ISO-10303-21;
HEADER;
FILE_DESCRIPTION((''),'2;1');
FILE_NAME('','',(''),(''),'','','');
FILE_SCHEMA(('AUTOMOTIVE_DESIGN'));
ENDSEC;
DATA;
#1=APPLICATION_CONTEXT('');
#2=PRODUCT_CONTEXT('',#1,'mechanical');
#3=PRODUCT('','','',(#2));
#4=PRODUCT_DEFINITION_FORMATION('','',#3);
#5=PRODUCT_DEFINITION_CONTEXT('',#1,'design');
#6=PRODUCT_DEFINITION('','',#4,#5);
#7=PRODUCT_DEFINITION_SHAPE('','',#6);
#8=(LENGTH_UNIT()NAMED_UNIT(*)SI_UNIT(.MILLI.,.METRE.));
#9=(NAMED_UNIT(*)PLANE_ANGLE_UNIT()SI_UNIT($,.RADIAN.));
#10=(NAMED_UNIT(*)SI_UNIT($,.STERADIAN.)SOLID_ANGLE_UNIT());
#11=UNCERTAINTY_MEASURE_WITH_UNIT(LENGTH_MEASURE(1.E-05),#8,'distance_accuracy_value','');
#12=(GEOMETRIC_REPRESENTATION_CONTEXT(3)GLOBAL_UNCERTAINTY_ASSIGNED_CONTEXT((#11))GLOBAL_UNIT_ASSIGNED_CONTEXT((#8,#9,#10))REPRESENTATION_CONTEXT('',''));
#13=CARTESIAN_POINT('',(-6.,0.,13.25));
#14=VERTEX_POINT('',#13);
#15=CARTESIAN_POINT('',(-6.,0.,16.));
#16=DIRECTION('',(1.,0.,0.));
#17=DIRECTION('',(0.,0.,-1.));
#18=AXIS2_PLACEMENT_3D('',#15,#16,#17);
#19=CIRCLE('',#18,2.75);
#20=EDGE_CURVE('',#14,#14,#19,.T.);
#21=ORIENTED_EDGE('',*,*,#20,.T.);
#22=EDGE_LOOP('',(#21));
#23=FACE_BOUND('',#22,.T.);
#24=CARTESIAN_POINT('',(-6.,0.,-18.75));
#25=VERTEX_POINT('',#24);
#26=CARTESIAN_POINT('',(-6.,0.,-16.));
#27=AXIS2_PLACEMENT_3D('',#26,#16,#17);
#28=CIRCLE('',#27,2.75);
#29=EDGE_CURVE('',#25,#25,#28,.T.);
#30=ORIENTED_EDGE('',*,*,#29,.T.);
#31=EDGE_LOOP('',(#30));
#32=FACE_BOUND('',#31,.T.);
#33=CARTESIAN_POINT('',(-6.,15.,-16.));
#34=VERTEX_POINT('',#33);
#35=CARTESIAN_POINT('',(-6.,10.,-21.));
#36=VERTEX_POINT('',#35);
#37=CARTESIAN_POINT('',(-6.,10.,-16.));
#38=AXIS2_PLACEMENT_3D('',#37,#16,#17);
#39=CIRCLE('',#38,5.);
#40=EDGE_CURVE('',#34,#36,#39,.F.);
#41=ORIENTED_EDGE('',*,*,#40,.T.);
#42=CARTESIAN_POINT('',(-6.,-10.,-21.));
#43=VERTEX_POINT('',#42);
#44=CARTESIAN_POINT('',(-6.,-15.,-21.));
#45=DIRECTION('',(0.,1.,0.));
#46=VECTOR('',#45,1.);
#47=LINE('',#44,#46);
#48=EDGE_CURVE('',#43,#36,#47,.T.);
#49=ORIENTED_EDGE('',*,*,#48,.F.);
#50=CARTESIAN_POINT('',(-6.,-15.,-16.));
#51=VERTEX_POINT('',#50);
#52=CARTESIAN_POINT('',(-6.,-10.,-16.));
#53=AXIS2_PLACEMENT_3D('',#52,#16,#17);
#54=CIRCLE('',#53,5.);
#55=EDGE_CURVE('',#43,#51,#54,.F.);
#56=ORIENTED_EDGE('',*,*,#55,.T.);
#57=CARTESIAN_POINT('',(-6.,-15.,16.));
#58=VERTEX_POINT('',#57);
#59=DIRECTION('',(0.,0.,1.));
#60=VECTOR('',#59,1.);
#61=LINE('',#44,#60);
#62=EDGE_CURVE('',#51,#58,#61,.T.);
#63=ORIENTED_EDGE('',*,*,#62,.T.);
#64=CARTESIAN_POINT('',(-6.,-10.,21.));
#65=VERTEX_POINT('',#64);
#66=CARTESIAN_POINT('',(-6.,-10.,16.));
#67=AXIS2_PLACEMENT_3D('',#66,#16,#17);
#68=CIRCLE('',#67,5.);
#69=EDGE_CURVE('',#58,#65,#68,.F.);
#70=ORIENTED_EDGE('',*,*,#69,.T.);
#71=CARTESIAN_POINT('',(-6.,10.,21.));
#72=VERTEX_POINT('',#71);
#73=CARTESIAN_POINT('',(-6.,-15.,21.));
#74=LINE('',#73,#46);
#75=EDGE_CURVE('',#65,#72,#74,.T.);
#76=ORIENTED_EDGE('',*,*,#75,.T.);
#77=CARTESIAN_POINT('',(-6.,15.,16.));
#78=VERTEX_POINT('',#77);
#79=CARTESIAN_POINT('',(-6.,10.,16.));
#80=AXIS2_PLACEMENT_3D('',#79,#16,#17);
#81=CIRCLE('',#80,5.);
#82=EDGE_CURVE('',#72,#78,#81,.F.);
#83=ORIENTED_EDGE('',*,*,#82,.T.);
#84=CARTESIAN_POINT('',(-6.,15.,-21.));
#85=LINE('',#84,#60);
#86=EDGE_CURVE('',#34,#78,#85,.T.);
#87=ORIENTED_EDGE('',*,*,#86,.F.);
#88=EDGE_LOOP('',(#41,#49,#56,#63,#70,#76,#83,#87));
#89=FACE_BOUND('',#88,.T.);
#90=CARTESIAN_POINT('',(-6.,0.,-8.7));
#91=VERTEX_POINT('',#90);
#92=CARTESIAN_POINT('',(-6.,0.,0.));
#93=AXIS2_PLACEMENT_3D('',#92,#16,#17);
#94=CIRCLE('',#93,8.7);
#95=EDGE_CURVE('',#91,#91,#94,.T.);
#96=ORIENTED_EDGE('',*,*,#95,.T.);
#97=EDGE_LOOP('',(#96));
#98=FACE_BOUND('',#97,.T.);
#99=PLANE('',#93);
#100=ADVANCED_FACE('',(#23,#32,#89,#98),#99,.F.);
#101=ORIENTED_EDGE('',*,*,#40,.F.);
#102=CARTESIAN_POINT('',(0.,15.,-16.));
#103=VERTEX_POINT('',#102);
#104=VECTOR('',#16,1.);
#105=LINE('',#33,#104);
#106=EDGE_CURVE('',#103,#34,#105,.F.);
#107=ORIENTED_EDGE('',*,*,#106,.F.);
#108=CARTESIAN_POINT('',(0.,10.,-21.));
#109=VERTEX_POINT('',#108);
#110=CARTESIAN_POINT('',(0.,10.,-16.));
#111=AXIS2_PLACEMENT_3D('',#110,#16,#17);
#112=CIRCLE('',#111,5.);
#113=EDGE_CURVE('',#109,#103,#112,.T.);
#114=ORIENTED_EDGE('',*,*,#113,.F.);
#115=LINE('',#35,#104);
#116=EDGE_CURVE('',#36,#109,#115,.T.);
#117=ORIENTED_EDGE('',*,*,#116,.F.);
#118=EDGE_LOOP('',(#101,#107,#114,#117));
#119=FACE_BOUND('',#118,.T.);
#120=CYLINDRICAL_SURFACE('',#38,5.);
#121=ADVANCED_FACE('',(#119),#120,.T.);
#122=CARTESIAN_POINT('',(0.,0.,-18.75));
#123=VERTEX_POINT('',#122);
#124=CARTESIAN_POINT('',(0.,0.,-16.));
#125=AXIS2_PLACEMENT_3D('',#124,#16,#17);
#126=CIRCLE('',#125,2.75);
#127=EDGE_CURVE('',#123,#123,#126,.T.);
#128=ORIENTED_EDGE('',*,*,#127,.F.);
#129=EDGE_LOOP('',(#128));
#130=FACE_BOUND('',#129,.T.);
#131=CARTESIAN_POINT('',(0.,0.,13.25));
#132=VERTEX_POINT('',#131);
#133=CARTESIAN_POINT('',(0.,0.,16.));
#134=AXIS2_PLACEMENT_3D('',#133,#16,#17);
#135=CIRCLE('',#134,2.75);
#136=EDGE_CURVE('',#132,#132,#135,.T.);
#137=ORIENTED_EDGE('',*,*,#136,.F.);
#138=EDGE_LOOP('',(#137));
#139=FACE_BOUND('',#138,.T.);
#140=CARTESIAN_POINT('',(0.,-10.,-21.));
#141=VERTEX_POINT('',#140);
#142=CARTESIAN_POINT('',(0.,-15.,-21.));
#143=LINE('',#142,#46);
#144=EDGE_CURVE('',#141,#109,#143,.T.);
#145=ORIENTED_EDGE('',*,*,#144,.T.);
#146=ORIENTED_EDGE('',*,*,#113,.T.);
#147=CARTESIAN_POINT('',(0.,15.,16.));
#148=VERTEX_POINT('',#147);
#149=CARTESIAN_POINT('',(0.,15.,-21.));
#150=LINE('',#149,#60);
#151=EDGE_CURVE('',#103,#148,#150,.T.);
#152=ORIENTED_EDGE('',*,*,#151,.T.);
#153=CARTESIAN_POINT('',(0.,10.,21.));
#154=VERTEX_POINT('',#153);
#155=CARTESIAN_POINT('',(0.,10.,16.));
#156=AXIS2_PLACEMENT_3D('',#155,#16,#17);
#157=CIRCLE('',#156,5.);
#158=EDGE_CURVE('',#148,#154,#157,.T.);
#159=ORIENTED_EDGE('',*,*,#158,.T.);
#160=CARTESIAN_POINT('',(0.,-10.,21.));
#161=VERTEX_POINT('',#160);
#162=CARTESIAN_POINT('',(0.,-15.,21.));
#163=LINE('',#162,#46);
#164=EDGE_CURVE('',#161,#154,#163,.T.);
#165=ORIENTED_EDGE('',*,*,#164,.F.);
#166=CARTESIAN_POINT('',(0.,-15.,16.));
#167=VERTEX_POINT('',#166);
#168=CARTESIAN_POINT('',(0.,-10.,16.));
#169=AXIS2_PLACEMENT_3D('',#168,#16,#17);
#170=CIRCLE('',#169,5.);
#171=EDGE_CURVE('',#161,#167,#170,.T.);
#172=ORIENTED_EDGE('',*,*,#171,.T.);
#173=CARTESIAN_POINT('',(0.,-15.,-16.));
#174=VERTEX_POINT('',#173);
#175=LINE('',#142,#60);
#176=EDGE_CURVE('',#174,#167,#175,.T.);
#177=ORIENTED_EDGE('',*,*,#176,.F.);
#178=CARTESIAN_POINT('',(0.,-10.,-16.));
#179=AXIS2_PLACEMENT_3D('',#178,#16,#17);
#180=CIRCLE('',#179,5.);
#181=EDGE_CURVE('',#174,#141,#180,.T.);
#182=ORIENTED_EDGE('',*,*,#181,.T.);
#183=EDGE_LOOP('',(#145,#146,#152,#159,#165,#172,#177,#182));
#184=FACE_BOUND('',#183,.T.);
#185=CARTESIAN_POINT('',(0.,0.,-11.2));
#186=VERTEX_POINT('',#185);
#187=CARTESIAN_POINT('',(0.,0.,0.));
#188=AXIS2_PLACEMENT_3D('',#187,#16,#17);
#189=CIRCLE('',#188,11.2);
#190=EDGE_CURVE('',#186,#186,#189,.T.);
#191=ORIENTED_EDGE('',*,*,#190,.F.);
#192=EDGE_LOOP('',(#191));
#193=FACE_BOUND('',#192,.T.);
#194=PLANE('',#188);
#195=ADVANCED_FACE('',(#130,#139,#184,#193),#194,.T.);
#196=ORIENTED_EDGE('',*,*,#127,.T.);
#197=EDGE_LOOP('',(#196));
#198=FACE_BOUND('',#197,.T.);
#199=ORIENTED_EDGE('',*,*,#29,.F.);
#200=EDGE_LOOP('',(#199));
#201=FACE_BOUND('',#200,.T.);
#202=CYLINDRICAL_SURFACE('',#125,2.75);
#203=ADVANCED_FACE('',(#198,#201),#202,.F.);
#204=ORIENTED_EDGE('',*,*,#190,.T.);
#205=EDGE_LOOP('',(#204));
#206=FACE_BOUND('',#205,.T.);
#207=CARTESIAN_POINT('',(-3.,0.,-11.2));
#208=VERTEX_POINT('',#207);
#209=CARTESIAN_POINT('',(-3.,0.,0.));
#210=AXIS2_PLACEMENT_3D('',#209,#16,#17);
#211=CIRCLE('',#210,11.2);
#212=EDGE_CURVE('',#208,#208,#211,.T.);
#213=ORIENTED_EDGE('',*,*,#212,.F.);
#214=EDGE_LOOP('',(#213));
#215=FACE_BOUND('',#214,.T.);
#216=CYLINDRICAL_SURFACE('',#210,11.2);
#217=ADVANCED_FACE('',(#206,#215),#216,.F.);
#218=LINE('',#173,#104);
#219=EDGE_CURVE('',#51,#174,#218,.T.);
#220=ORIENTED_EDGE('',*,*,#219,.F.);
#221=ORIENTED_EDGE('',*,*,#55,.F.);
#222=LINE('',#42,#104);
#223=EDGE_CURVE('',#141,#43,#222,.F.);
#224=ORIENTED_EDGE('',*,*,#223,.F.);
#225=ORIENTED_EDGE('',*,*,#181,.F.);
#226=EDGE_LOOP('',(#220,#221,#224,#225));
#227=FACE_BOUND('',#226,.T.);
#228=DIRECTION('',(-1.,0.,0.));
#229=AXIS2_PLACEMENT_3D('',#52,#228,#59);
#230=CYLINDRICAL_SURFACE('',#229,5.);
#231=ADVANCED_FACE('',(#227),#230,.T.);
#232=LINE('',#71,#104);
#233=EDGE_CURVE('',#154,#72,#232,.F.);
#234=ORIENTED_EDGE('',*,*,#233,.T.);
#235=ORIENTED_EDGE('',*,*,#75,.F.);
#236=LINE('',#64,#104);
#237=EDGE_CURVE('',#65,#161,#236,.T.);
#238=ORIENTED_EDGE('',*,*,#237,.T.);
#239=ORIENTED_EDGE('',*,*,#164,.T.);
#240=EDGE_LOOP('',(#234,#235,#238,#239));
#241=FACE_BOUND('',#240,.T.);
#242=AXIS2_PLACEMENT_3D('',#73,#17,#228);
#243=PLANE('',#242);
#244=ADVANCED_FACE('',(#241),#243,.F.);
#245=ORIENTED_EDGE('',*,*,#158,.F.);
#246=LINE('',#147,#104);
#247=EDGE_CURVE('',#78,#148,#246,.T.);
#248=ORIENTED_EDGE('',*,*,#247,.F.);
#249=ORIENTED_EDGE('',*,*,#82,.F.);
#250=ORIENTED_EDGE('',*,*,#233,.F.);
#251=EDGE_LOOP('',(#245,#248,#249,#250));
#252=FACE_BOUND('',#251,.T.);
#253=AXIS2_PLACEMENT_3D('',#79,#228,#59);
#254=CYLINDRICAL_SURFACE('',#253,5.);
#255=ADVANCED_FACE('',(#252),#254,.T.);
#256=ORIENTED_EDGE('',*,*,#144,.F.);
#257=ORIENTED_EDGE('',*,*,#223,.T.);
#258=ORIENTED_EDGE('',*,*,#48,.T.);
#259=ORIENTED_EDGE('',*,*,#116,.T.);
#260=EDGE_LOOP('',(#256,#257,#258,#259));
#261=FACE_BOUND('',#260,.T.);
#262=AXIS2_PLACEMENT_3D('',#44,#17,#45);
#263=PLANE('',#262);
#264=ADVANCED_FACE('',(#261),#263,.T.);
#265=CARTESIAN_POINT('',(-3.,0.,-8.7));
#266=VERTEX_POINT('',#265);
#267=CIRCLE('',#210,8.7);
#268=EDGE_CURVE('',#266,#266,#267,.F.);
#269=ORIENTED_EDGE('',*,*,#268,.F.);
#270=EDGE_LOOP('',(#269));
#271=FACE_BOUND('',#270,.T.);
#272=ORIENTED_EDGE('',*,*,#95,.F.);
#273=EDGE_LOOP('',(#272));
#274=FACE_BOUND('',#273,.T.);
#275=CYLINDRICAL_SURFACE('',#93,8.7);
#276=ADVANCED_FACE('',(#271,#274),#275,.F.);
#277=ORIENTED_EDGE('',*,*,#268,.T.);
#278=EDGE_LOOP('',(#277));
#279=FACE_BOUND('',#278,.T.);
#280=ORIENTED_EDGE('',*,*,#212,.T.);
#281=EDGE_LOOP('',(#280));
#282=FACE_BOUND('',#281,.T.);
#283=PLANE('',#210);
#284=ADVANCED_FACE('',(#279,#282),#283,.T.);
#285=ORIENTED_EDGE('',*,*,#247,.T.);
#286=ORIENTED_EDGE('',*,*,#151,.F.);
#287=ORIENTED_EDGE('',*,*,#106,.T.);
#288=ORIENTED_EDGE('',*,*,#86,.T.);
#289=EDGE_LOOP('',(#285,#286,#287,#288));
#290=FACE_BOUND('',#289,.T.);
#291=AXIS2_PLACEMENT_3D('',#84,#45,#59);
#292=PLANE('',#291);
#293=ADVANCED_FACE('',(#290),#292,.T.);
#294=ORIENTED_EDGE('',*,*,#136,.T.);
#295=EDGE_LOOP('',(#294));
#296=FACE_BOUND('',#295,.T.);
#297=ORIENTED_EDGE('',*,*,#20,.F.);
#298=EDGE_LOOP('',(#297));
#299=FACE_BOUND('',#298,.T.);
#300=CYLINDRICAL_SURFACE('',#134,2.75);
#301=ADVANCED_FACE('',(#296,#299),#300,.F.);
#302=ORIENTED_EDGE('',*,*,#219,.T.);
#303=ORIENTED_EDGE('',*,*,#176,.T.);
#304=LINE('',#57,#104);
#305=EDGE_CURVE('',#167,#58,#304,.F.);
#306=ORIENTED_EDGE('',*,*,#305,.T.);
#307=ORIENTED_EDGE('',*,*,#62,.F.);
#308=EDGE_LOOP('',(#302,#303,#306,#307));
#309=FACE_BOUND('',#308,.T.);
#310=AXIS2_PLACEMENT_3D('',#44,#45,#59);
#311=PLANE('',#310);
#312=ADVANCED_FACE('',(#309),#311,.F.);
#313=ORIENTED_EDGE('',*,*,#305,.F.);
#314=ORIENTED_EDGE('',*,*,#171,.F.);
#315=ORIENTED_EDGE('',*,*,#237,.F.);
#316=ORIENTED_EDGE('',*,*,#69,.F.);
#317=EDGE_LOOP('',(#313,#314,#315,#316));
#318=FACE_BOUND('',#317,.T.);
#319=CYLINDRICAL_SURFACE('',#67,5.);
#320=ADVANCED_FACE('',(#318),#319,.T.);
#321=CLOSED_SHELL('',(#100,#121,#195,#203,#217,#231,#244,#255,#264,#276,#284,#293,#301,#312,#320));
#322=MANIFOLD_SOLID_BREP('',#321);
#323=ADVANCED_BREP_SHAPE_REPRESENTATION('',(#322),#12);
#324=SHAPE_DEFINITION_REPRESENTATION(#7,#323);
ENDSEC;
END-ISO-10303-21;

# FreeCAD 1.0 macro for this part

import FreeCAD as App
import Part
import Sketcher
Q = App.Units.Quantity


def edges_at(feature, points):
    """Names of the edges that pass closest to the given points."""
    edges = feature.Shape.Edges
    near = lambda p: min(range(len(edges)), key=lambda i: edges[i].distToShape(Part.Vertex(*p))[0])
    return sorted({f"Edge{near(p) + 1}" for p in points})


def add_polygon(sketch, points):
    """Adds a closed chain of lines whose ends are joined by coincident constraints."""
    first, n = sketch.GeometryCount, len(points)
    for a, b in zip(points, points[1:] + points[:1]):
        sketch.addGeometry(Part.LineSegment(App.Vector(*a, 0), App.Vector(*b, 0)), False)
    for i in range(n):
        sketch.addConstraint(Sketcher.Constraint("Coincident", first + i, 2, first + (i + 1) % n, 1))

doc = App.newDocument("Part")
body = doc.addObject("PartDesign::Body", "Body")

# Sketch on YZ plane
sketch1 = doc.addObject("Sketcher::SketchObject", "Sketch")
body.addObject(sketch1)
sketch1.AttachmentSupport = (doc.YZ_Plane, [""])
sketch1.MapMode = "FlatFace"
add_polygon(sketch1, [(15, 21), (-15, 21), (-15, -21), (15, -21)])  # lines 0-3
sketch1.addConstraint(Sketcher.Constraint("Horizontal", 0))
sketch1.addConstraint(Sketcher.Constraint("Vertical", 1))
sketch1.addConstraint(Sketcher.Constraint("Horizontal", 2))
sketch1.addConstraint(Sketcher.Constraint("Vertical", 3))
sketch1.addConstraint(Sketcher.Constraint("Symmetric", 0, 2, 2, 2, -1, 1))
sketch1.addConstraint(Sketcher.Constraint("DistanceX", 0, 2, 0, 1, Q("30 mm")))
sketch1.addConstraint(Sketcher.Constraint("DistanceY", 1, 2, 1, 1, Q("42 mm")))
pad1 = doc.addObject("PartDesign::Pad", "Pad")
body.addObject(pad1)
pad1.Profile = sketch1
pad1.Length = 6
pad1.Reversed = True

# Sketch on YZ plane
sketch2 = doc.addObject("Sketcher::SketchObject", "Sketch001")
body.addObject(sketch2)
sketch2.AttachmentSupport = (doc.YZ_Plane, [""])
sketch2.MapMode = "FlatFace"
sketch2.addGeometry(Part.Circle(App.Vector(0, 0, 0), App.Vector(0, 0, 1), 9), False)
sketch2.addConstraint(Sketcher.Constraint("Coincident", 0, 3, -1, 1))
sketch2.addConstraint(Sketcher.Constraint("Diameter", 0, Q("17.4 mm")))
pocket1 = doc.addObject("PartDesign::Pocket", "Pocket")
body.addObject(pocket1)
pocket1.Profile = sketch2
pocket1.Length = 6

# Sketch on YZ plane
sketch3 = doc.addObject("Sketcher::SketchObject", "Sketch002")
body.addObject(sketch3)
sketch3.AttachmentSupport = (doc.YZ_Plane, [""])
sketch3.MapMode = "FlatFace"
sketch3.addGeometry(Part.Circle(App.Vector(0, 0, 0), App.Vector(0, 0, 1), 11), False)
sketch3.addConstraint(Sketcher.Constraint("Coincident", 0, 3, -1, 1))
sketch3.addConstraint(Sketcher.Constraint("Diameter", 0, Q("22.4 mm")))
pocket2 = doc.addObject("PartDesign::Pocket", "Pocket001")
body.addObject(pocket2)
pocket2.Profile = sketch3
pocket2.Length = 3

# Sketch on YZ plane
sketch4 = doc.addObject("Sketcher::SketchObject", "Sketch003")
body.addObject(sketch4)
sketch4.AttachmentSupport = (doc.YZ_Plane, [""])
sketch4.MapMode = "FlatFace"
sketch4.addGeometry(Part.Circle(App.Vector(0, 16, 0), App.Vector(0, 0, 1), 2.8), False)
sketch4.addGeometry(Part.Circle(App.Vector(0, -16, 0), App.Vector(0, 0, 1), 2.8), False)
sketch4.addConstraint(Sketcher.Constraint("Equal", 0, 1))
sketch4.addConstraint(Sketcher.Constraint("Symmetric", 0, 3, 1, 3, -1, 1))
sketch4.addConstraint(Sketcher.Constraint("PointOnObject", 0, 3, -2))
sketch4.addConstraint(Sketcher.Constraint("Diameter", 0, Q("5.5 mm")))
sketch4.addConstraint(Sketcher.Constraint("DistanceY", -1, 1, 0, 3, Q("16 mm")))
doc.recompute()
hole = doc.addObject("PartDesign::Hole", "Hole")
body.addObject(hole)
hole.Profile = sketch4
hole.ThreadType = "None"
hole.Diameter = 5.5
hole.DepthType = "ThroughAll"
doc.recompute()

fillet = doc.addObject("PartDesign::Fillet", "Fillet")
body.addObject(fillet)
fillet.Base = (hole, edges_at(hole, [
    (-3, -15, -21),
    (-3, -15, 21),
    (-3, 15, 21),
    (-3, 15, -21),
]))
fillet.Radius = 5

doc.recompute()
